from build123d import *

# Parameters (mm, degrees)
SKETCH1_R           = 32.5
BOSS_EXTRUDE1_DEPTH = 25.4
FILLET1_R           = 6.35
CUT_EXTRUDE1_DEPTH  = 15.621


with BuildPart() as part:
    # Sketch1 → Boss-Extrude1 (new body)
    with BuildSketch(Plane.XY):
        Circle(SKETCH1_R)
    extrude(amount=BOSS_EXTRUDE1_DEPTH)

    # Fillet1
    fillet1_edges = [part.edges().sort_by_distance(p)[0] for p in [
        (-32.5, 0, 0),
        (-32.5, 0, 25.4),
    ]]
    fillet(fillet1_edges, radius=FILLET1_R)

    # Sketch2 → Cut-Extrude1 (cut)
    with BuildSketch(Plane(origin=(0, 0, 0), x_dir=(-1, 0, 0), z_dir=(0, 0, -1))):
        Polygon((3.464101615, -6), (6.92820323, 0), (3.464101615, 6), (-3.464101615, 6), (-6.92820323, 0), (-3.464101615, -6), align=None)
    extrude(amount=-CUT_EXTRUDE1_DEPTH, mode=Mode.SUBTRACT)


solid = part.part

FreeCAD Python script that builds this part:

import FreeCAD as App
import Part
import Sketcher
from FreeCAD import Vector
Q = App.Units.Quantity


def edges_at(feature, points):
    """Names of the edges that pass closest to the given points."""
    edges = feature.Shape.Edges
    near = lambda p: min(range(len(edges)), key=lambda i: edges[i].distToShape(Part.Vertex(*p))[0])
    return sorted({f"Edge{near(p) + 1}" for p in points})

doc = App.newDocument("Part")
params = doc.addObject("Spreadsheet::Sheet", "Params")
for row, (alias, value) in enumerate([
    ("pad1_length", "1 in"),
    ("fillet_radius", "0.25 in"),
    ("pocket1_length", "0.615 in"),
], start=1):
    params.set(f"A{row}", alias)
    params.set(f"B{row}", "=" + value)
    params.setAlias(f"B{row}", alias)

body = doc.addObject("PartDesign::Body", "Body")

# Sketch on XY plane
sketch1 = body.newObject("Sketcher::SketchObject", "Sketch")
sketch1.AttachmentSupport = (doc.getObject("XY_Plane"), [""])
sketch1.MapMode = "FlatFace"
sketch1.addGeometry(Part.Circle(Vector(0, 0, 0), Vector(0, 0, 1), 32), False)
sketch1.addConstraint([
    Sketcher.Constraint("Coincident", 0, 3, -1, 1),
    Sketcher.Constraint("Diameter", 0, Q("65 mm")),
])
pad1 = body.newObject("PartDesign::Pad", "Pad")
pad1.Profile = sketch1
pad1.setExpression("Length", "Params.pad1_length")
doc.recompute()

fillet = body.newObject("PartDesign::Fillet", "Fillet")
fillet.Base = (pad1, edges_at(pad1, [(-32.5, 0, 0), (-32.5, 0, 25.4)]))
fillet.setExpression("Radius", "Params.fillet_radius")

# Sketch on XY plane
sketch2 = body.newObject("Sketcher::SketchObject", "Sketch001")
sketch2.AttachmentSupport = (doc.getObject("XY_Plane"), [""])
sketch2.MapMode = "FlatFace"
sketch2.addGeometry([
    Part.LineSegment(Vector(-3, -6, 0), Vector(-7, 0, 0)),  # 0
    Part.LineSegment(Vector(-7, 0, 0), Vector(-3, 6, 0)),  # 1
    Part.LineSegment(Vector(-3, 6, 0), Vector(3, 6, 0)),  # 2
    Part.LineSegment(Vector(3, 6, 0), Vector(7, 0, 0)),  # 3
    Part.LineSegment(Vector(7, 0, 0), Vector(3, -6, 0)),  # 4
    Part.LineSegment(Vector(3, -6, 0), Vector(-3, -6, 0)),  # 5
], False)
sketch2.addConstraint([
    Sketcher.Constraint("Coincident", 0, 2, 1, 1),
    Sketcher.Constraint("Coincident", 1, 2, 2, 1),
    Sketcher.Constraint("Coincident", 2, 2, 3, 1),
    Sketcher.Constraint("Coincident", 3, 2, 4, 1),
    Sketcher.Constraint("Coincident", 4, 2, 5, 1),
    Sketcher.Constraint("Coincident", 5, 2, 0, 1),
    Sketcher.Constraint("Horizontal", 2),
    Sketcher.Constraint("Horizontal", 5),
    Sketcher.Constraint("Symmetric", 0, 2, 3, 2, -1, 1),
    Sketcher.Constraint("Symmetric", 1, 2, 4, 2, -1, 1),
    Sketcher.Constraint("PointOnObject", 0, 2, -1),
    Sketcher.Constraint("Parallel", 0, 3),
    Sketcher.Constraint("Vertical", 2, 2, 4, 2),
    Sketcher.Constraint("Angle", 0, Q("120 deg")),
    Sketcher.Constraint("DistanceX", 1, 2, -1, 1, Q("3.464102 mm")),
    Sketcher.Constraint("DistanceY", -1, 1, 1, 2, Q("6 mm")),
])
pocket1 = body.newObject("PartDesign::Pocket", "Pocket")
pocket1.Profile = sketch2
pocket1.setExpression("Length", "Params.pocket1_length")
pocket1.Reversed = True

doc.recompute()
